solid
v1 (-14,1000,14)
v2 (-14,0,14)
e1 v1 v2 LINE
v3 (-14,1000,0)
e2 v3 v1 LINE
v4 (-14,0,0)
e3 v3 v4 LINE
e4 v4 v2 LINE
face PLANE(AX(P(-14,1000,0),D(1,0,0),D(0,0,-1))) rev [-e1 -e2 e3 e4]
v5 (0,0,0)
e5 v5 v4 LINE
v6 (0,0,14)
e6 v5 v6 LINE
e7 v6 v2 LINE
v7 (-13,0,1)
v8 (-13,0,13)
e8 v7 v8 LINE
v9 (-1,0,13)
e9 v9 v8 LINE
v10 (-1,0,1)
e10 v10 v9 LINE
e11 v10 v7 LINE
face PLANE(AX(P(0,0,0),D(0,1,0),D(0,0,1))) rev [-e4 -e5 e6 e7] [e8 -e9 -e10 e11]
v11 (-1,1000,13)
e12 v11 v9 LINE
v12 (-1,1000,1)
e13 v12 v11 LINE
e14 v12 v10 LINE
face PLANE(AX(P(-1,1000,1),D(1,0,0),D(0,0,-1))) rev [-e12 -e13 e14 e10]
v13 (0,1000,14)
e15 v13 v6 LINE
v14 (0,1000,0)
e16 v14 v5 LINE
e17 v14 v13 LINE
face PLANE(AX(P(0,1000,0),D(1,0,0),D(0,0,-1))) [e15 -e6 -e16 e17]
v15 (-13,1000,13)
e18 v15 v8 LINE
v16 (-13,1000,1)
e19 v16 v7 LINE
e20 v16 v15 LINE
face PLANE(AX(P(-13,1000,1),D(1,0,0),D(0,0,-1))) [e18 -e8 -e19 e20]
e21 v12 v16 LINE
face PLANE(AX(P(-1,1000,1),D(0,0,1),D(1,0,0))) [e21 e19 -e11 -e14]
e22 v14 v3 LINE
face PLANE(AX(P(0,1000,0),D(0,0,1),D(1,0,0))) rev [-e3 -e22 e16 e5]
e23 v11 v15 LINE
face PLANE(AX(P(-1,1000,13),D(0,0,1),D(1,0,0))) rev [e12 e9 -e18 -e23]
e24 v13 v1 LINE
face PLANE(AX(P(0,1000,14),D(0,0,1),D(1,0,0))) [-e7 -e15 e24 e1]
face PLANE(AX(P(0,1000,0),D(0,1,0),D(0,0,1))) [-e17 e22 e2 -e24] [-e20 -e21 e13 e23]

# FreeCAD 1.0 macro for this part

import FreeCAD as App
import Part
import Sketcher

V = App.Vector

doc = App.newDocument("Part")
body = doc.addObject("PartDesign::Body", "Body")

sketch1 = body.newObject("Sketcher::SketchObject", "Sketch")
sketch1.AttachmentSupport = (doc.getObject("XZ_Plane"), [""])
sketch1.MapMode = "FlatFace"
sketch1.addGeometry([
    Part.LineSegment(V(-14, 0, 0), V(-14, 14, 0)),
    Part.LineSegment(V(-14, 14, 0), V(0, 14, 0)),
    Part.LineSegment(V(0, 14, 0), V(0, 0, 0)),
    Part.LineSegment(V(0, 0, 0), V(-14, 0, 0)),
    Part.LineSegment(V(-1, 13, 0), V(-13, 13, 0)),
    Part.LineSegment(V(-13, 13, 0), V(-13, 1, 0)),
    Part.LineSegment(V(-13, 1, 0), V(-1, 1, 0)),
    Part.LineSegment(V(-1, 1, 0), V(-1, 13, 0)),
], False)
sketch1.addConstraint([
    Sketcher.Constraint("Coincident", 0, 2, 1, 1),
    Sketcher.Constraint("Coincident", 1, 2, 2, 1),
    Sketcher.Constraint("Coincident", 2, 2, 3, 1),
    Sketcher.Constraint("Coincident", 3, 2, 0, 1),
    Sketcher.Constraint("Coincident", 4, 2, 5, 1),
    Sketcher.Constraint("Coincident", 5, 2, 6, 1),
    Sketcher.Constraint("Coincident", 6, 2, 7, 1),
    Sketcher.Constraint("Coincident", 7, 2, 4, 1),
    Sketcher.Constraint("Vertical", 0),
    Sketcher.Constraint("Horizontal", 1),
    Sketcher.Constraint("Vertical", 2),
    Sketcher.Constraint("Horizontal", 3),
    Sketcher.Constraint("Horizontal", 4),
    Sketcher.Constraint("Vertical", 5),
    Sketcher.Constraint("Horizontal", 6),
    Sketcher.Constraint("Vertical", 7),
    Sketcher.Constraint("Coincident", 2, 2, -1, 1),
    Sketcher.Constraint("Equal", 3, 0),
    Sketcher.Constraint("Equal", 6, 5),
    Sketcher.Constraint("DistanceX", 1, 1, 1, 2, 14.0),
    Sketcher.Constraint("DistanceX", 4, 2, 4, 1, 12.0),
    Sketcher.Constraint("DistanceX", 4, 2, -1, 1, 13.0),
    Sketcher.Constraint("DistanceY", -1, 1, 4, 2, 13.0),
])
pad1 = body.newObject("PartDesign::Pad", "Pad")
pad1.Profile = sketch1
pad1.Length = 1000
pad1.Reversed = True

doc.recompute()
